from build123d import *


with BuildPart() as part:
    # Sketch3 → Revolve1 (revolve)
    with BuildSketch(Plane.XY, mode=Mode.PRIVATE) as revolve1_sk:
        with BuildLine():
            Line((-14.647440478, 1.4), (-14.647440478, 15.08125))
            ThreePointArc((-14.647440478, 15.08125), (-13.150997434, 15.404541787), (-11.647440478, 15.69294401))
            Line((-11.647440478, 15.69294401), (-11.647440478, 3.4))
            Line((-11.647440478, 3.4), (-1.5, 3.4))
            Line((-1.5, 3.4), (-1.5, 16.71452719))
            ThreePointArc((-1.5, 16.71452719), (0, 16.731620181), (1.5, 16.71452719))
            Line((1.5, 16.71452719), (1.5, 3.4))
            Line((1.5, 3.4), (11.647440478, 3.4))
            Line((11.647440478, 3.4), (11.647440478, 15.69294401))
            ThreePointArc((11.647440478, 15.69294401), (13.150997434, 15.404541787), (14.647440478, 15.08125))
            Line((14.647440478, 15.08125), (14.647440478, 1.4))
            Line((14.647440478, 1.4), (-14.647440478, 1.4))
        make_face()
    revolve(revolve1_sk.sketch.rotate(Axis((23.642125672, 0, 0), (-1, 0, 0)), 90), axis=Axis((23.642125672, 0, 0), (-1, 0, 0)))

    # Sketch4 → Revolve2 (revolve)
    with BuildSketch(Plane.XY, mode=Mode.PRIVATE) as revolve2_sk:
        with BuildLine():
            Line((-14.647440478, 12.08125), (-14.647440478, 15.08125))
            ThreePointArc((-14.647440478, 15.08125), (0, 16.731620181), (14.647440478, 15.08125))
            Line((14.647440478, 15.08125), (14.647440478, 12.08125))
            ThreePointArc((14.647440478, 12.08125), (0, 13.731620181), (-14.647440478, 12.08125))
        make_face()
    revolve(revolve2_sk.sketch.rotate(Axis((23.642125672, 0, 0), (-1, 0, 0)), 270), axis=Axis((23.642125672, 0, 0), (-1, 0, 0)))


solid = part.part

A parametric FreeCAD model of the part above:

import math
import FreeCAD as App
import Part
import Sketcher

V = App.Vector

doc = App.newDocument("Part")
body = doc.addObject("PartDesign::Body", "Body")

# Sketch on XY plane
sketch1 = doc.addObject("Sketcher::SketchObject", "Sketch")
body.addObject(sketch1)
sketch1.AttachmentSupport = (doc.XY_Plane, [""])
sketch1.MapMode = "FlatFace"
sketch1.addGeometry([
    Part.LineSegment(V(-14.6, 15.1, 0), V(-14.6, 1.4, 0)),  # 0
    Part.LineSegment(V(-14.6, 1.4, 0), V(14.6, 1.4, 0)),  # 1
    Part.LineSegment(V(14.6, 1.4, 0), V(14.6, 15.1, 0)),  # 2
    Part.ArcOfCircle(Part.Circle(V(0, -49.1, 0), V(0, 0, 1), 65.8), math.radians(77.14), math.radians(79.81)),  # 3
    Part.LineSegment(V(11.6, 15.7, 0), V(11.6, 3.4, 0)),  # 4
    Part.LineSegment(V(11.6, 3.4, 0), V(1.5, 3.4, 0)),  # 5
    Part.LineSegment(V(1.5, 3.4, 0), V(1.5, 16.7, 0)),  # 6
    Part.ArcOfCircle(Part.Circle(V(0, -49.1, 0), V(0, 0, 1), 65.8), math.radians(88.69), math.radians(91.31)),  # 7
    Part.LineSegment(V(-1.5, 16.7, 0), V(-1.5, 3.4, 0)),  # 8
    Part.LineSegment(V(-1.5, 3.4, 0), V(-11.6, 3.4, 0)),  # 9
    Part.LineSegment(V(-11.6, 3.4, 0), V(-11.6, 15.7, 0)),  # 10
    Part.ArcOfCircle(Part.Circle(V(0, -49.1, 0), V(0, 0, 1), 65.8), math.radians(100.19), math.radians(102.86)),  # 11
], False)
sketch1.addConstraint([
    Sketcher.Constraint("Coincident", 0, 2, 1, 1),
    Sketcher.Constraint("Coincident", 1, 2, 2, 1),
    Sketcher.Constraint("Coincident", 2, 2, 3, 1),
    Sketcher.Constraint("Coincident", 3, 2, 4, 1),
    Sketcher.Constraint("Coincident", 4, 2, 5, 1),
    Sketcher.Constraint("Coincident", 5, 2, 6, 1),
    Sketcher.Constraint("Coincident", 6, 2, 7, 1),
    Sketcher.Constraint("Coincident", 7, 2, 8, 1),
    Sketcher.Constraint("Coincident", 8, 2, 9, 1),
    Sketcher.Constraint("Coincident", 9, 2, 10, 1),
    Sketcher.Constraint("Coincident", 10, 2, 11, 1),
    Sketcher.Constraint("Coincident", 11, 2, 0, 1),
    Sketcher.Constraint("Vertical", 0),
    Sketcher.Constraint("Horizontal", 1),
    Sketcher.Constraint("Vertical", 2),
    Sketcher.Constraint("Vertical", 4),
    Sketcher.Constraint("Horizontal", 5),
    Sketcher.Constraint("Vertical", 6),
    Sketcher.Constraint("Vertical", 8),
    Sketcher.Constraint("Horizontal", 9),
    Sketcher.Constraint("Vertical", 10),
    Sketcher.Constraint("Coincident", 7, 3, 3, 3),
    Sketcher.Constraint("Coincident", 11, 3, 3, 3),
    Sketcher.Constraint("Equal", 3, 7),
    Sketcher.Constraint("Equal", 7, 11),
    Sketcher.Constraint("Symmetric", 6, 2, 7, 2, -2),
    Sketcher.Constraint("Symmetric", 4, 2, 9, 2, -2),
    Sketcher.Constraint("Horizontal", 2, 2, 11, 2),
    Sketcher.Constraint("Radius", 3, 65.824999),
    Sketcher.Constraint("DistanceX", 3, 2, 2, 2, 3.0),
    Sketcher.Constraint("DistanceY", 1, 2, 4, 2, 2.0),
    Sketcher.Constraint("DistanceX", 7, 2, 6, 2, 3.0),
    Sketcher.Constraint("DistanceY", -1, 1, 0, 2, 1.4),
    Sketcher.Constraint("DistanceX", 1, 1, 1, 2, 29.294881),
    Sketcher.Constraint("DistanceY", 0, 2, 0, 1, 13.68125),
])
revolution = doc.addObject("PartDesign::Revolution", "Revolution")
body.addObject(revolution)
revolution.Profile = sketch1
revolution.ReferenceAxis = (sketch1, ["H_Axis"])
revolution.Angle = 360

# Sketch on XY plane
sketch2 = doc.addObject("Sketcher::SketchObject", "Sketch001")
body.addObject(sketch2)
sketch2.AttachmentSupport = (doc.XY_Plane, [""])
sketch2.MapMode = "FlatFace"
sketch2.addGeometry([
    Part.LineSegment(V(-14.6, 15.1, 0), V(-14.6, 12.1, 0)),
    Part.ArcOfCircle(Part.Circle(V(0, -52.1, 0), V(0, 0, 1), 65.8), math.radians(77), math.radians(103)),
    Part.LineSegment(V(14.6, 12.1, 0), V(14.6, 15.1, 0)),
    Part.ArcOfCircle(Part.Circle(V(0, -49.1, 0), V(0, 0, 1), 65.8), math.radians(77), math.radians(103)),
], False)
sketch2.addConstraint([
    Sketcher.Constraint("Coincident", 0, 2, 1, 2),
    Sketcher.Constraint("Coincident", 1, 1, 2, 1),
    Sketcher.Constraint("Coincident", 2, 2, 3, 1),
    Sketcher.Constraint("Coincident", 3, 2, 0, 1),
    Sketcher.Constraint("Vertical", 0),
    Sketcher.Constraint("Vertical", 2),
    Sketcher.Constraint("Equal", 1, 3),
    Sketcher.Constraint("Symmetric", 0, 2, 1, 1, -2),
    Sketcher.Constraint("PointOnObject", 3, 3, -2),
    Sketcher.Constraint("DistanceY", 0, 2, 0, 1, 3.0),
    Sketcher.Constraint("Radius", 1, 65.825),
    Sketcher.Constraint("DistanceY", 1, 3, -1, 1, 52.09338),
    Sketcher.Constraint("DistanceX", 0, 2, -1, 1, 14.64744),
])
revolution2 = doc.addObject("PartDesign::Revolution", "Revolution001")
body.addObject(revolution2)
revolution2.Profile = sketch2
revolution2.ReferenceAxis = (sketch2, ["H_Axis"])
revolution2.Angle = 360

doc.recompute()
